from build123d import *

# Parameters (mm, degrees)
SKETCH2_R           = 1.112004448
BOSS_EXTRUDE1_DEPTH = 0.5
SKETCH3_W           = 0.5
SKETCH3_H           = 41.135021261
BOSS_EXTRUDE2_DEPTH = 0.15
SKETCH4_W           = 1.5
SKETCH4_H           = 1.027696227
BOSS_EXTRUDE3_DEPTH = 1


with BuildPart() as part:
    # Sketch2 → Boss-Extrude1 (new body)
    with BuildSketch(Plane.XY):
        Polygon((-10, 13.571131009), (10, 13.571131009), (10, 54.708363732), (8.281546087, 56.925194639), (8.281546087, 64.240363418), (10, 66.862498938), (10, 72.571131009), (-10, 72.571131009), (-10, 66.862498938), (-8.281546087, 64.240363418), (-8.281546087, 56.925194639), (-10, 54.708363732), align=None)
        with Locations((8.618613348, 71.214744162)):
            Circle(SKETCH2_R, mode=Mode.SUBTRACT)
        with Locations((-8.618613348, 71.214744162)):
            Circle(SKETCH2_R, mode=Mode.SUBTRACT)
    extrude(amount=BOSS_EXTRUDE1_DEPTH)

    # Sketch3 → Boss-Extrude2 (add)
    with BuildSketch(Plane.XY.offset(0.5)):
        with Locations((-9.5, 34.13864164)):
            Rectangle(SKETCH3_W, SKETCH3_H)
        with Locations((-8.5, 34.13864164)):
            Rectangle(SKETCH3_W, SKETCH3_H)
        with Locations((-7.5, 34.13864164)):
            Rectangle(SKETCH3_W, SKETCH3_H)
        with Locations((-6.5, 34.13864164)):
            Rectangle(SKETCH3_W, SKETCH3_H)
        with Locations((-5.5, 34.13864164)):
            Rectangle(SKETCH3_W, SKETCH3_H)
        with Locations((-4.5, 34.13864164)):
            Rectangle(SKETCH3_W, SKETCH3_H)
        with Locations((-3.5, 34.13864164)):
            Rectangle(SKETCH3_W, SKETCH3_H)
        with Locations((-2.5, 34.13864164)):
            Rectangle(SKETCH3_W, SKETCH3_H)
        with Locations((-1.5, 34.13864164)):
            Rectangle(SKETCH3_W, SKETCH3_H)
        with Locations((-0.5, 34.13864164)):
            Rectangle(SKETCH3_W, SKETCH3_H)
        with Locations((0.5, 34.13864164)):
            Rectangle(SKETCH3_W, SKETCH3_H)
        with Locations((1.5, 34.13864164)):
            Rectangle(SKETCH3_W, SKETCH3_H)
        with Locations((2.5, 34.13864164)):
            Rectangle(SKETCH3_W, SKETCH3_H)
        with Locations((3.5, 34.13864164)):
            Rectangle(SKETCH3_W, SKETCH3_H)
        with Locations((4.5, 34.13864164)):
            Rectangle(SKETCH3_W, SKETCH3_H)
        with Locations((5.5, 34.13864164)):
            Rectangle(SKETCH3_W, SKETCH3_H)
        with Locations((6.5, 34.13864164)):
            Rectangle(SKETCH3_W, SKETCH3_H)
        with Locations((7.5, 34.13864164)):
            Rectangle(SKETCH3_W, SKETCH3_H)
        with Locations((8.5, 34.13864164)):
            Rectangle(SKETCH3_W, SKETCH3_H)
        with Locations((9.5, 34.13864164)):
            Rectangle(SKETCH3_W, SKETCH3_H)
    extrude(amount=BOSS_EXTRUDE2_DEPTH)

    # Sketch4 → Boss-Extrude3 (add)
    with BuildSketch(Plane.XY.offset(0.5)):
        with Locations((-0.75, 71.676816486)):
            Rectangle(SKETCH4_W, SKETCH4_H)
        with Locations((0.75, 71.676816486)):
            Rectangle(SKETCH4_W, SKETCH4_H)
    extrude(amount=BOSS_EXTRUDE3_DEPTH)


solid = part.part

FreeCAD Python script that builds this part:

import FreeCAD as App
import Part
import Sketcher
from FreeCAD import Vector

doc = App.newDocument("Part")
body = doc.addObject("PartDesign::Body", "Body")

sketch1 = doc.addObject("Sketcher::SketchObject", "Sketch")
body.addObject(sketch1)
sketch1.AttachmentSupport = (doc.XY_Plane, [""])
sketch1.MapMode = "FlatFace"
sketch1.addGeometry([
    Part.LineSegment(Vector(-10, 13.6, 0), Vector(10, 13.6, 0)),
    Part.LineSegment(Vector(10, 13.6, 0), Vector(10, 54.7, 0)),
    Part.LineSegment(Vector(10, 54.7, 0), Vector(8.3, 56.9, 0)),
    Part.LineSegment(Vector(8.3, 56.9, 0), Vector(8.3, 64.2, 0)),
    Part.LineSegment(Vector(8.3, 64.2, 0), Vector(10, 66.9, 0)),
    Part.LineSegment(Vector(10, 66.9, 0), Vector(10, 72.6, 0)),
    Part.LineSegment(Vector(10, 72.6, 0), Vector(-10, 72.6, 0)),
    Part.LineSegment(Vector(-10, 72.6, 0), Vector(-10, 66.9, 0)),
    Part.LineSegment(Vector(-10, 66.9, 0), Vector(-8.3, 64.2, 0)),
    Part.LineSegment(Vector(-8.3, 64.2, 0), Vector(-8.3, 56.9, 0)),
    Part.LineSegment(Vector(-8.3, 56.9, 0), Vector(-10, 54.7, 0)),
    Part.LineSegment(Vector(-10, 54.7, 0), Vector(-10, 13.6, 0)),
    Part.Circle(Vector(-8.6, 71.2, 0), Vector(0, 0, 1), 1.1),
    Part.Circle(Vector(8.6, 71.2, 0), Vector(0, 0, 1), 1.1),
], False)
sketch1.addConstraint([
    Sketcher.Constraint("Coincident", 0, 2, 1, 1),
    Sketcher.Constraint("Coincident", 1, 2, 2, 1),
    Sketcher.Constraint("Coincident", 2, 2, 3, 1),
    Sketcher.Constraint("Coincident", 3, 2, 4, 1),
    Sketcher.Constraint("Coincident", 4, 2, 5, 1),
    Sketcher.Constraint("Coincident", 5, 2, 6, 1),
    Sketcher.Constraint("Coincident", 6, 2, 7, 1),
    Sketcher.Constraint("Coincident", 7, 2, 8, 1),
    Sketcher.Constraint("Coincident", 8, 2, 9, 1),
    Sketcher.Constraint("Coincident", 9, 2, 10, 1),
    Sketcher.Constraint("Coincident", 10, 2, 11, 1),
    Sketcher.Constraint("Coincident", 11, 2, 0, 1),
    Sketcher.Constraint("Horizontal", 0),
    Sketcher.Constraint("Vertical", 1),
    Sketcher.Constraint("Vertical", 3),
    Sketcher.Constraint("Vertical", 5),
    Sketcher.Constraint("Horizontal", 6),
    Sketcher.Constraint("Vertical", 7),
    Sketcher.Constraint("Vertical", 9),
    Sketcher.Constraint("Vertical", 11),
    Sketcher.Constraint("Equal", 12, 13),
    Sketcher.Constraint("Symmetric", 12, 3, 13, 3, -2),
    Sketcher.Constraint("Symmetric", 4, 2, 7, 2, -2),
    Sketcher.Constraint("Symmetric", 3, 2, 8, 2, -2),
    Sketcher.Constraint("Symmetric", 1, 2, 10, 2, -2),
    Sketcher.Constraint("Horizontal", 2, 2, 9, 2),
    Sketcher.Constraint("Vertical", 1, 2, 4, 2),
    Sketcher.Constraint("DistanceX", 0, 1, 0, 2, 20.0),
    Sketcher.Constraint("Diameter", 12, 2.224009),
    Sketcher.Constraint("DistanceY", 1, 2, 3, 2, 9.532),
    Sketcher.Constraint("DistanceY", 3, 1, 3, 2, 7.315169),
    Sketcher.Constraint("DistanceY", -1, 1, 4, 2, 66.862499),
    Sketcher.Constraint("DistanceY", 1, 1, 1, 2, 41.137233),
    Sketcher.Constraint("DistanceY", 5, 1, 5, 2, 5.708632),
    Sketcher.Constraint("DistanceY", -1, 1, 0, 2, 13.571131),
    Sketcher.Constraint("DistanceY", 1, 2, 13, 3, 16.50638),
    Sketcher.Constraint("DistanceX", 12, 3, 2, 2, 16.900159),
    Sketcher.Constraint("Distance", 2, 2.804893),
])
pad1 = doc.addObject("PartDesign::Pad", "Pad")
body.addObject(pad1)
pad1.Profile = sketch1
pad1.Length = 0.5

sketch2 = doc.addObject("Sketcher::SketchObject", "Sketch001")
body.addObject(sketch2)
sketch2.AttachmentSupport = (doc.XY_Plane, [""])
sketch2.MapMode = "FlatFace"
sketch2.AttachmentOffset = App.Placement(Vector(0, 0, 0.5), App.Rotation())
sketch2.addGeometry([
    Part.LineSegment(Vector(-9.8, 54.7, 0), Vector(-9.8, 13.6, 0)),
    Part.LineSegment(Vector(-9.8, 13.6, 0), Vector(-9.2, 13.6, 0)),
    Part.LineSegment(Vector(-9.2, 13.6, 0), Vector(-9.2, 54.7, 0)),
    Part.LineSegment(Vector(-9.2, 54.7, 0), Vector(-9.8, 54.7, 0)),
    Part.LineSegment(Vector(-8.8, 54.7, 0), Vector(-8.8, 13.6, 0)),
    Part.LineSegment(Vector(-8.8, 13.6, 0), Vector(-8.2, 13.6, 0)),
    Part.LineSegment(Vector(-8.2, 13.6, 0), Vector(-8.2, 54.7, 0)),
    Part.LineSegment(Vector(-8.2, 54.7, 0), Vector(-8.8, 54.7, 0)),
    Part.LineSegment(Vector(-7.8, 54.7, 0), Vector(-7.8, 13.6, 0)),
    Part.LineSegment(Vector(-7.8, 13.6, 0), Vector(-7.2, 13.6, 0)),
    Part.LineSegment(Vector(-7.2, 13.6, 0), Vector(-7.2, 54.7, 0)),
    Part.LineSegment(Vector(-7.2, 54.7, 0), Vector(-7.8, 54.7, 0)),
    Part.LineSegment(Vector(-6.8, 54.7, 0), Vector(-6.8, 13.6, 0)),
    Part.LineSegment(Vector(-6.8, 13.6, 0), Vector(-6.2, 13.6, 0)),
    Part.LineSegment(Vector(-6.2, 13.6, 0), Vector(-6.2, 54.7, 0)),
    Part.LineSegment(Vector(-6.2, 54.7, 0), Vector(-6.8, 54.7, 0)),
    Part.LineSegment(Vector(-5.8, 54.7, 0), Vector(-5.8, 13.6, 0)),
    Part.LineSegment(Vector(-5.8, 13.6, 0), Vector(-5.2, 13.6, 0)),
    Part.LineSegment(Vector(-5.2, 13.6, 0), Vector(-5.2, 54.7, 0)),
    Part.LineSegment(Vector(-5.2, 54.7, 0), Vector(-5.8, 54.7, 0)),
    Part.LineSegment(Vector(-4.8, 54.7, 0), Vector(-4.8, 13.6, 0)),
    Part.LineSegment(Vector(-4.8, 13.6, 0), Vector(-4.2, 13.6, 0)),
    Part.LineSegment(Vector(-4.2, 13.6, 0), Vector(-4.2, 54.7, 0)),
    Part.LineSegment(Vector(-4.2, 54.7, 0), Vector(-4.8, 54.7, 0)),
    Part.LineSegment(Vector(-3.8, 54.7, 0), Vector(-3.8, 13.6, 0)),
    Part.LineSegment(Vector(-3.8, 13.6, 0), Vector(-3.2, 13.6, 0)),
    Part.LineSegment(Vector(-3.2, 13.6, 0), Vector(-3.2, 54.7, 0)),
    Part.LineSegment(Vector(-3.2, 54.7, 0), Vector(-3.8, 54.7, 0)),
    Part.LineSegment(Vector(-2.8, 54.7, 0), Vector(-2.8, 13.6, 0)),
    Part.LineSegment(Vector(-2.8, 13.6, 0), Vector(-2.2, 13.6, 0)),
    Part.LineSegment(Vector(-2.2, 13.6, 0), Vector(-2.2, 54.7, 0)),
    Part.LineSegment(Vector(-2.2, 54.7, 0), Vector(-2.8, 54.7, 0)),
    Part.LineSegment(Vector(-1.8, 54.7, 0), Vector(-1.8, 13.6, 0)),
    Part.LineSegment(Vector(-1.8, 13.6, 0), Vector(-1.2, 13.6, 0)),
    Part.LineSegment(Vector(-1.2, 13.6, 0), Vector(-1.2, 54.7, 0)),
    Part.LineSegment(Vector(-1.2, 54.7, 0), Vector(-1.8, 54.7, 0)),
    Part.LineSegment(Vector(-0.8, 54.7, 0), Vector(-0.8, 13.6, 0)),
    Part.LineSegment(Vector(-0.8, 13.6, 0), Vector(-0.2, 13.6, 0)),
    Part.LineSegment(Vector(-0.2, 13.6, 0), Vector(-0.2, 54.7, 0)),
    Part.LineSegment(Vector(-0.2, 54.7, 0), Vector(-0.8, 54.7, 0)),
    Part.LineSegment(Vector(0.2, 54.7, 0), Vector(0.2, 13.6, 0)),
    Part.LineSegment(Vector(0.2, 13.6, 0), Vector(0.8, 13.6, 0)),
    Part.LineSegment(Vector(0.8, 13.6, 0), Vector(0.8, 54.7, 0)),
    Part.LineSegment(Vector(0.8, 54.7, 0), Vector(0.2, 54.7, 0)),
    Part.LineSegment(Vector(1.2, 54.7, 0), Vector(1.2, 13.6, 0)),
    Part.LineSegment(Vector(1.2, 13.6, 0), Vector(1.8, 13.6, 0)),
    Part.LineSegment(Vector(1.8, 13.6, 0), Vector(1.8, 54.7, 0)),
    Part.LineSegment(Vector(1.8, 54.7, 0), Vector(1.2, 54.7, 0)),
    Part.LineSegment(Vector(2.2, 54.7, 0), Vector(2.2, 13.6, 0)),
    Part.LineSegment(Vector(2.2, 13.6, 0), Vector(2.8, 13.6, 0)),
    Part.LineSegment(Vector(2.8, 13.6, 0), Vector(2.8, 54.7, 0)),
    Part.LineSegment(Vector(2.8, 54.7, 0), Vector(2.2, 54.7, 0)),
    Part.LineSegment(Vector(3.2, 54.7, 0), Vector(3.2, 13.6, 0)),
    Part.LineSegment(Vector(3.2, 13.6, 0), Vector(3.8, 13.6, 0)),
    Part.LineSegment(Vector(3.8, 13.6, 0), Vector(3.8, 54.7, 0)),
    Part.LineSegment(Vector(3.8, 54.7, 0), Vector(3.2, 54.7, 0)),
    Part.LineSegment(Vector(4.2, 54.7, 0), Vector(4.2, 13.6, 0)),
    Part.LineSegment(Vector(4.2, 13.6, 0), Vector(4.8, 13.6, 0)),
    Part.LineSegment(Vector(4.8, 13.6, 0), Vector(4.8, 54.7, 0)),
    Part.LineSegment(Vector(4.8, 54.7, 0), Vector(4.2, 54.7, 0)),
    Part.LineSegment(Vector(5.2, 54.7, 0), Vector(5.2, 13.6, 0)),
    Part.LineSegment(Vector(5.2, 13.6, 0), Vector(5.8, 13.6, 0)),
    Part.LineSegment(Vector(5.8, 13.6, 0), Vector(5.8, 54.7, 0)),
    Part.LineSegment(Vector(5.8, 54.7, 0), Vector(5.2, 54.7, 0)),
    Part.LineSegment(Vector(6.2, 54.7, 0), Vector(6.2, 13.6, 0)),
    Part.LineSegment(Vector(6.2, 13.6, 0), Vector(6.8, 13.6, 0)),
    Part.LineSegment(Vector(6.8, 13.6, 0), Vector(6.8, 54.7, 0)),
    Part.LineSegment(Vector(6.8, 54.7, 0), Vector(6.2, 54.7, 0)),
    Part.LineSegment(Vector(7.2, 54.7, 0), Vector(7.2, 13.6, 0)),
    Part.LineSegment(Vector(7.2, 13.6, 0), Vector(7.8, 13.6, 0)),
    Part.LineSegment(Vector(7.8, 13.6, 0), Vector(7.8, 54.7, 0)),
    Part.LineSegment(Vector(7.8, 54.7, 0), Vector(7.2, 54.7, 0)),
    Part.LineSegment(Vector(8.2, 54.7, 0), Vector(8.2, 13.6, 0)),
    Part.LineSegment(Vector(8.2, 13.6, 0), Vector(8.8, 13.6, 0)),
    Part.LineSegment(Vector(8.8, 13.6, 0), Vector(8.8, 54.7, 0)),
    Part.LineSegment(Vector(8.8, 54.7, 0), Vector(8.2, 54.7, 0)),
    Part.LineSegment(Vector(9.2, 54.7, 0), Vector(9.2, 13.6, 0)),
    Part.LineSegment(Vector(9.2, 13.6, 0), Vector(9.8, 13.6, 0)),
    Part.LineSegment(Vector(9.8, 13.6, 0), Vector(9.8, 54.7, 0)),
    Part.LineSegment(Vector(9.8, 54.7, 0), Vector(9.2, 54.7, 0)),
], False)
sketch2.addConstraint([
    Sketcher.Constraint("Coincident", 0, 2, 1, 1),
    Sketcher.Constraint("Coincident", 1, 2, 2, 1),
    Sketcher.Constraint("Coincident", 2, 2, 3, 1),
    Sketcher.Constraint("Coincident", 3, 2, 0, 1),
    Sketcher.Constraint("Coincident", 4, 2, 5, 1),
    Sketcher.Constraint("Coincident", 5, 2, 6, 1),
    Sketcher.Constraint("Coincident", 6, 2, 7, 1),
    Sketcher.Constraint("Coincident", 7, 2, 4, 1),
    Sketcher.Constraint("Coincident", 8, 2, 9, 1),
    Sketcher.Constraint("Coincident", 9, 2, 10, 1),
    Sketcher.Constraint("Coincident", 10, 2, 11, 1),
    Sketcher.Constraint("Coincident", 11, 2, 8, 1),
    Sketcher.Constraint("Coincident", 12, 2, 13, 1),
    Sketcher.Constraint("Coincident", 13, 2, 14, 1),
    Sketcher.Constraint("Coincident", 14, 2, 15, 1),
    Sketcher.Constraint("Coincident", 15, 2, 12, 1),
    Sketcher.Constraint("Coincident", 16, 2, 17, 1),
    Sketcher.Constraint("Coincident", 17, 2, 18, 1),
    Sketcher.Constraint("Coincident", 18, 2, 19, 1),
    Sketcher.Constraint("Coincident", 19, 2, 16, 1),
    Sketcher.Constraint("Coincident", 20, 2, 21, 1),
    Sketcher.Constraint("Coincident", 21, 2, 22, 1),
    Sketcher.Constraint("Coincident", 22, 2, 23, 1),
    Sketcher.Constraint("Coincident", 23, 2, 20, 1),
    Sketcher.Constraint("Coincident", 24, 2, 25, 1),
    Sketcher.Constraint("Coincident", 25, 2, 26, 1),
    Sketcher.Constraint("Coincident", 26, 2, 27, 1),
    Sketcher.Constraint("Coincident", 27, 2, 24, 1),
    Sketcher.Constraint("Coincident", 28, 2, 29, 1),
    Sketcher.Constraint("Coincident", 29, 2, 30, 1),
    Sketcher.Constraint("Coincident", 30, 2, 31, 1),
    Sketcher.Constraint("Coincident", 31, 2, 28, 1),
    Sketcher.Constraint("Coincident", 32, 2, 33, 1),
    Sketcher.Constraint("Coincident", 33, 2, 34, 1),
    Sketcher.Constraint("Coincident", 34, 2, 35, 1),
    Sketcher.Constraint("Coincident", 35, 2, 32, 1),
    Sketcher.Constraint("Coincident", 36, 2, 37, 1),
    Sketcher.Constraint("Coincident", 37, 2, 38, 1),
    Sketcher.Constraint("Coincident", 38, 2, 39, 1),
    Sketcher.Constraint("Coincident", 39, 2, 36, 1),
    Sketcher.Constraint("Coincident", 40, 2, 41, 1),
    Sketcher.Constraint("Coincident", 41, 2, 42, 1),
    Sketcher.Constraint("Coincident", 42, 2, 43, 1),
    Sketcher.Constraint("Coincident", 43, 2, 40, 1),
    Sketcher.Constraint("Coincident", 44, 2, 45, 1),
    Sketcher.Constraint("Coincident", 45, 2, 46, 1),
    Sketcher.Constraint("Coincident", 46, 2, 47, 1),
    Sketcher.Constraint("Coincident", 47, 2, 44, 1),
    Sketcher.Constraint("Coincident", 48, 2, 49, 1),
    Sketcher.Constraint("Coincident", 49, 2, 50, 1),
    Sketcher.Constraint("Coincident", 50, 2, 51, 1),
    Sketcher.Constraint("Coincident", 51, 2, 48, 1),
    Sketcher.Constraint("Coincident", 52, 2, 53, 1),
    Sketcher.Constraint("Coincident", 53, 2, 54, 1),
    Sketcher.Constraint("Coincident", 54, 2, 55, 1),
    Sketcher.Constraint("Coincident", 55, 2, 52, 1),
    Sketcher.Constraint("Coincident", 56, 2, 57, 1),
    Sketcher.Constraint("Coincident", 57, 2, 58, 1),
    Sketcher.Constraint("Coincident", 58, 2, 59, 1),
    Sketcher.Constraint("Coincident", 59, 2, 56, 1),
    Sketcher.Constraint("Coincident", 60, 2, 61, 1),
    Sketcher.Constraint("Coincident", 61, 2, 62, 1),
    Sketcher.Constraint("Coincident", 62, 2, 63, 1),
    Sketcher.Constraint("Coincident", 63, 2, 60, 1),
    Sketcher.Constraint("Coincident", 64, 2, 65, 1),
    Sketcher.Constraint("Coincident", 65, 2, 66, 1),
    Sketcher.Constraint("Coincident", 66, 2, 67, 1),
    Sketcher.Constraint("Coincident", 67, 2, 64, 1),
    Sketcher.Constraint("Coincident", 68, 2, 69, 1),
    Sketcher.Constraint("Coincident", 69, 2, 70, 1),
    Sketcher.Constraint("Coincident", 70, 2, 71, 1),
    Sketcher.Constraint("Coincident", 71, 2, 68, 1),
    Sketcher.Constraint("Coincident", 72, 2, 73, 1),
    Sketcher.Constraint("Coincident", 73, 2, 74, 1),
    Sketcher.Constraint("Coincident", 74, 2, 75, 1),
    Sketcher.Constraint("Coincident", 75, 2, 72, 1),
    Sketcher.Constraint("Coincident", 76, 2, 77, 1),
    Sketcher.Constraint("Coincident", 77, 2, 78, 1),
    Sketcher.Constraint("Coincident", 78, 2, 79, 1),
    Sketcher.Constraint("Coincident", 79, 2, 76, 1),
    Sketcher.Constraint("Vertical", 0),
    Sketcher.Constraint("Horizontal", 1),
    Sketcher.Constraint("Vertical", 2),
    Sketcher.Constraint("Horizontal", 3),
    Sketcher.Constraint("Vertical", 4),
    Sketcher.Constraint("Horizontal", 5),
    Sketcher.Constraint("Vertical", 6),
    Sketcher.Constraint("Horizontal", 7),
    Sketcher.Constraint("Vertical", 8),
    Sketcher.Constraint("Horizontal", 9),
    Sketcher.Constraint("Vertical", 10),
    Sketcher.Constraint("Horizontal", 11),
    Sketcher.Constraint("Vertical", 12),
    Sketcher.Constraint("Horizontal", 13),
    Sketcher.Constraint("Vertical", 14),
    Sketcher.Constraint("Horizontal", 15),
    Sketcher.Constraint("Vertical", 16),
    Sketcher.Constraint("Horizontal", 17),
    Sketcher.Constraint("Vertical", 18),
    Sketcher.Constraint("Horizontal", 19),
    Sketcher.Constraint("Vertical", 20),
    Sketcher.Constraint("Horizontal", 21),
    Sketcher.Constraint("Vertical", 22),
    Sketcher.Constraint("Horizontal", 23),
    Sketcher.Constraint("Vertical", 24),
    Sketcher.Constraint("Horizontal", 25),
    Sketcher.Constraint("Vertical", 26),
    Sketcher.Constraint("Horizontal", 27),
    Sketcher.Constraint("Vertical", 28),
    Sketcher.Constraint("Horizontal", 29),
    Sketcher.Constraint("Vertical", 30),
    Sketcher.Constraint("Horizontal", 31),
    Sketcher.Constraint("Vertical", 32),
    Sketcher.Constraint("Horizontal", 33),
    Sketcher.Constraint("Vertical", 34),
    Sketcher.Constraint("Horizontal", 35),
    Sketcher.Constraint("Vertical", 36),
    Sketcher.Constraint("Horizontal", 37),
    Sketcher.Constraint("Vertical", 38),
    Sketcher.Constraint("Horizontal", 39),
    Sketcher.Constraint("Vertical", 40),
    Sketcher.Constraint("Horizontal", 41),
    Sketcher.Constraint("Vertical", 42),
    Sketcher.Constraint("Horizontal", 43),
    Sketcher.Constraint("Vertical", 44),
    Sketcher.Constraint("Horizontal", 45),
    Sketcher.Constraint("Vertical", 46),
    Sketcher.Constraint("Horizontal", 47),
    Sketcher.Constraint("Vertical", 48),
    Sketcher.Constraint("Horizontal", 49),
    Sketcher.Constraint("Vertical", 50),
    Sketcher.Constraint("Horizontal", 51),
    Sketcher.Constraint("Vertical", 52),
    Sketcher.Constraint("Horizontal", 53),
    Sketcher.Constraint("Vertical", 54),
    Sketcher.Constraint("Horizontal", 55),
    Sketcher.Constraint("Vertical", 56),
    Sketcher.Constraint("Horizontal", 57),
    Sketcher.Constraint("Vertical", 58),
    Sketcher.Constraint("Horizontal", 59),
    Sketcher.Constraint("Vertical", 60),
    Sketcher.Constraint("Horizontal", 61),
    Sketcher.Constraint("Vertical", 62),
    Sketcher.Constraint("Horizontal", 63),
    Sketcher.Constraint("Vertical", 64),
    Sketcher.Constraint("Horizontal", 65),
    Sketcher.Constraint("Vertical", 66),
    Sketcher.Constraint("Horizontal", 67),
    Sketcher.Constraint("Vertical", 68),
    Sketcher.Constraint("Horizontal", 69),
    Sketcher.Constraint("Vertical", 70),
    Sketcher.Constraint("Horizontal", 71),
    Sketcher.Constraint("Vertical", 72),
    Sketcher.Constraint("Horizontal", 73),
    Sketcher.Constraint("Vertical", 74),
    Sketcher.Constraint("Horizontal", 75),
    Sketcher.Constraint("Vertical", 76),
    Sketcher.Constraint("Horizontal", 77),
    Sketcher.Constraint("Vertical", 78),
    Sketcher.Constraint("Horizontal", 79),
    Sketcher.Constraint("Symmetric", 37, 2, 40, 2, -2),
    Sketcher.Constraint("Symmetric", 39, 2, 42, 2, -2),
    Sketcher.Constraint("Symmetric", 33, 2, 44, 2, -2),
    Sketcher.Constraint("Symmetric", 35, 2, 46, 2, -2),
    Sketcher.Constraint("Symmetric", 29, 2, 48, 2, -2),
    Sketcher.Constraint("Symmetric", 31, 2, 50, 2, -2),
    Sketcher.Constraint("Symmetric", 25, 2, 52, 2, -2),
    Sketcher.Constraint("Symmetric", 27, 2, 54, 2, -2),
    Sketcher.Constraint("Symmetric", 21, 2, 56, 2, -2),
    Sketcher.Constraint("Symmetric", 23, 2, 58, 2, -2),
    Sketcher.Constraint("Symmetric", 17, 2, 60, 2, -2),
    Sketcher.Constraint("Symmetric", 19, 2, 62, 2, -2),
    Sketcher.Constraint("Symmetric", 13, 2, 64, 2, -2),
    Sketcher.Constraint("Symmetric", 15, 2, 66, 2, -2),
    Sketcher.Constraint("Symmetric", 9, 2, 68, 2, -2),
    Sketcher.Constraint("Symmetric", 11, 2, 70, 2, -2),
    Sketcher.Constraint("Symmetric", 5, 2, 72, 2, -2),
    Sketcher.Constraint("Symmetric", 7, 2, 74, 2, -2),
    Sketcher.Constraint("Symmetric", 1, 2, 76, 2, -2),
    Sketcher.Constraint("Symmetric", 3, 2, 78, 2, -2),
    Sketcher.Constraint("Horizontal", 1, 2, 4, 2),
    Sketcher.Constraint("Horizontal", 3, 2, 6, 2),
    Sketcher.Constraint("Horizontal", 5, 2, 8, 2),
    Sketcher.Constraint("Horizontal", 7, 2, 10, 2),
    Sketcher.Constraint("Horizontal", 9, 2, 12, 2),
    Sketcher.Constraint("Horizontal", 11, 2, 14, 2),
    Sketcher.Constraint("Horizontal", 13, 2, 16, 2),
    Sketcher.Constraint("Horizontal", 15, 2, 18, 2),
    Sketcher.Constraint("Horizontal", 17, 2, 20, 2),
    Sketcher.Constraint("Horizontal", 19, 2, 22, 2),
    Sketcher.Constraint("Horizontal", 21, 2, 24, 2),
    Sketcher.Constraint("Horizontal", 23, 2, 26, 2),
    Sketcher.Constraint("Horizontal", 25, 2, 28, 2),
    Sketcher.Constraint("Horizontal", 27, 2, 30, 2),
    Sketcher.Constraint("Horizontal", 29, 2, 32, 2),
    Sketcher.Constraint("Horizontal", 31, 2, 34, 2),
    Sketcher.Constraint("Horizontal", 33, 2, 36, 2),
    Sketcher.Constraint("Horizontal", 35, 2, 38, 2),
    Sketcher.Constraint("Equal", 3, 5),
    Sketcher.Constraint("Equal", 7, 9),
    Sketcher.Constraint("Equal", 11, 13),
    Sketcher.Constraint("Equal", 15, 17),
    Sketcher.Constraint("Equal", 19, 21),
    Sketcher.Constraint("Equal", 23, 25),
    Sketcher.Constraint("Equal", 27, 29),
    Sketcher.Constraint("Equal", 31, 33),
    Sketcher.Constraint("Equal", 35, 37),
    Sketcher.Constraint("DistanceX", 1, 1, 1, 2, 0.5),
    Sketcher.Constraint("DistanceX", 0, 2, -1, 1, 9.75),
    Sketcher.Constraint("DistanceX", 4, 2, -1, 1, 8.75),
    Sketcher.Constraint("DistanceX", 8, 2, -1, 1, 7.75),
    Sketcher.Constraint("DistanceX", 12, 2, -1, 1, 6.75),
    Sketcher.Constraint("DistanceX", 16, 2, -1, 1, 5.75),
    Sketcher.Constraint("DistanceX", 20, 2, -1, 1, 4.75),
    Sketcher.Constraint("DistanceX", 24, 2, -1, 1, 3.75),
    Sketcher.Constraint("DistanceX", 28, 2, -1, 1, 2.75),
    Sketcher.Constraint("DistanceX", 32, 2, -1, 1, 1.75),
    Sketcher.Constraint("DistanceX", 36, 2, -1, 1, 0.75),
    Sketcher.Constraint("DistanceY", 0, 2, 0, 1, 41.135021),
    Sketcher.Constraint("DistanceY", -1, 1, 0, 2, 13.571131),
])
pad2 = doc.addObject("PartDesign::Pad", "Pad001")
body.addObject(pad2)
pad2.Profile = sketch2
pad2.Length = 0.15

sketch3 = doc.addObject("Sketcher::SketchObject", "Sketch002")
body.addObject(sketch3)
sketch3.AttachmentSupport = (doc.XY_Plane, [""])
sketch3.MapMode = "FlatFace"
sketch3.AttachmentOffset = App.Placement(Vector(0, 0, 0.5), App.Rotation())
sketch3.addGeometry([
    Part.LineSegment(Vector(-1.5, 72.2, 0), Vector(-1.5, 71.2, 0)),
    Part.LineSegment(Vector(-1.5, 71.2, 0), Vector(1.5, 71.2, 0)),
    Part.LineSegment(Vector(1.5, 71.2, 0), Vector(1.5, 72.2, 0)),
    Part.LineSegment(Vector(1.5, 72.2, 0), Vector(-1.5, 72.2, 0)),
], False)
sketch3.addConstraint([
    Sketcher.Constraint("Coincident", 0, 2, 1, 1),
    Sketcher.Constraint("Coincident", 1, 2, 2, 1),
    Sketcher.Constraint("Coincident", 2, 2, 3, 1),
    Sketcher.Constraint("Coincident", 3, 2, 0, 1),
    Sketcher.Constraint("Vertical", 0),
    Sketcher.Constraint("Horizontal", 1),
    Sketcher.Constraint("Vertical", 2),
    Sketcher.Constraint("Horizontal", 3),
    Sketcher.Constraint("DistanceX", 1, 1, 1, 2, 3.0),
    Sketcher.Constraint("DistanceX", 0, 2, -1, 1, 1.5),
    Sketcher.Constraint("DistanceY", 0, 2, 0, 1, 1.027696),
    Sketcher.Constraint("DistanceY", -1, 1, 0, 2, 71.162968),
])
pad3 = doc.addObject("PartDesign::Pad", "Pad002")
body.addObject(pad3)
pad3.Profile = sketch3
pad3.Length = 1

doc.recompute()
